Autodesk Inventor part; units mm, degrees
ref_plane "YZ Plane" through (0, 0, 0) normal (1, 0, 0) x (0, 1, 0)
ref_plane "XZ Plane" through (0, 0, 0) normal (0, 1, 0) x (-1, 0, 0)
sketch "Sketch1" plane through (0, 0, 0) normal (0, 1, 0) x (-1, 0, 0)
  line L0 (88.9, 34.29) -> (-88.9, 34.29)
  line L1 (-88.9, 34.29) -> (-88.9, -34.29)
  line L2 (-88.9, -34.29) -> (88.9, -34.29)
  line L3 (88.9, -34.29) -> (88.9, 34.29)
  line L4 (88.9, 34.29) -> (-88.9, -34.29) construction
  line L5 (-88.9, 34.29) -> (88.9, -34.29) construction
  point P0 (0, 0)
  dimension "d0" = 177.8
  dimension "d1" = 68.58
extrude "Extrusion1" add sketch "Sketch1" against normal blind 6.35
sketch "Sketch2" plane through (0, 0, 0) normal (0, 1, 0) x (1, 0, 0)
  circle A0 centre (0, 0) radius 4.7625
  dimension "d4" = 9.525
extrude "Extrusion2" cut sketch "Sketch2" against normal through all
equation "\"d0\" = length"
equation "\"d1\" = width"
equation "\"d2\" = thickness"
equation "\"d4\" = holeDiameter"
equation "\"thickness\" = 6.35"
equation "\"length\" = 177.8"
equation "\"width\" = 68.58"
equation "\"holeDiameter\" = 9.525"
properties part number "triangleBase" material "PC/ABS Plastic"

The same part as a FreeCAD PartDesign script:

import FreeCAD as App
import Part
import Sketcher
Q = App.Units.Quantity


def add_polygon(sketch, points):
    """Adds a closed chain of lines whose ends are joined by coincident constraints."""
    first, n = sketch.GeometryCount, len(points)
    for a, b in zip(points, points[1:] + points[:1]):
        sketch.addGeometry(Part.LineSegment(App.Vector(*a, 0), App.Vector(*b, 0)), False)
    for i in range(n):
        sketch.addConstraint(Sketcher.Constraint("Coincident", first + i, 2, first + (i + 1) % n, 1))

doc = App.newDocument("Part")
body = doc.addObject("PartDesign::Body", "Body")

# Sketch on XZ plane
sketch1 = doc.addObject("Sketcher::SketchObject", "Sketch")
body.addObject(sketch1)
sketch1.AttachmentSupport = (doc.XZ_Plane, [""])
sketch1.MapMode = "FlatFace"
add_polygon(sketch1, [(-89, -34), (-89, 34), (89, 34), (89, -34)])  # lines 0-3
sketch1.addConstraint([
    Sketcher.Constraint("Vertical", 0),
    Sketcher.Constraint("Horizontal", 1),
    Sketcher.Constraint("Vertical", 2),
    Sketcher.Constraint("Horizontal", 3),
    Sketcher.Constraint("Symmetric", 0, 2, 2, 2, -1, 1),
    Sketcher.Constraint("DistanceX", 1, 1, 1, 2, Q("7 in")),
    Sketcher.Constraint("DistanceY", 0, 1, 0, 2, Q("2.7 in")),
])
pad1 = doc.addObject("PartDesign::Pad", "Pad")
body.addObject(pad1)
pad1.Profile = sketch1
pad1.Length = Q("0.25 in")

# Sketch on XZ plane
sketch2 = doc.addObject("Sketcher::SketchObject", "Sketch001")
body.addObject(sketch2)
sketch2.AttachmentSupport = (doc.XZ_Plane, [""])
sketch2.MapMode = "FlatFace"
sketch2.addGeometry(Part.Circle(App.Vector(0, 0, 0), App.Vector(0, 0, 1), 4.8), False)
sketch2.addConstraint([
    Sketcher.Constraint("Coincident", 0, 3, -1, 1),
    Sketcher.Constraint("Diameter", 0, Q("0.375 in")),
])
pocket1 = doc.addObject("PartDesign::Pocket", "Pocket")
body.addObject(pocket1)
pocket1.Profile = sketch2
pocket1.Type = "ThroughAll"
pocket1.Reversed = True

doc.recompute()
